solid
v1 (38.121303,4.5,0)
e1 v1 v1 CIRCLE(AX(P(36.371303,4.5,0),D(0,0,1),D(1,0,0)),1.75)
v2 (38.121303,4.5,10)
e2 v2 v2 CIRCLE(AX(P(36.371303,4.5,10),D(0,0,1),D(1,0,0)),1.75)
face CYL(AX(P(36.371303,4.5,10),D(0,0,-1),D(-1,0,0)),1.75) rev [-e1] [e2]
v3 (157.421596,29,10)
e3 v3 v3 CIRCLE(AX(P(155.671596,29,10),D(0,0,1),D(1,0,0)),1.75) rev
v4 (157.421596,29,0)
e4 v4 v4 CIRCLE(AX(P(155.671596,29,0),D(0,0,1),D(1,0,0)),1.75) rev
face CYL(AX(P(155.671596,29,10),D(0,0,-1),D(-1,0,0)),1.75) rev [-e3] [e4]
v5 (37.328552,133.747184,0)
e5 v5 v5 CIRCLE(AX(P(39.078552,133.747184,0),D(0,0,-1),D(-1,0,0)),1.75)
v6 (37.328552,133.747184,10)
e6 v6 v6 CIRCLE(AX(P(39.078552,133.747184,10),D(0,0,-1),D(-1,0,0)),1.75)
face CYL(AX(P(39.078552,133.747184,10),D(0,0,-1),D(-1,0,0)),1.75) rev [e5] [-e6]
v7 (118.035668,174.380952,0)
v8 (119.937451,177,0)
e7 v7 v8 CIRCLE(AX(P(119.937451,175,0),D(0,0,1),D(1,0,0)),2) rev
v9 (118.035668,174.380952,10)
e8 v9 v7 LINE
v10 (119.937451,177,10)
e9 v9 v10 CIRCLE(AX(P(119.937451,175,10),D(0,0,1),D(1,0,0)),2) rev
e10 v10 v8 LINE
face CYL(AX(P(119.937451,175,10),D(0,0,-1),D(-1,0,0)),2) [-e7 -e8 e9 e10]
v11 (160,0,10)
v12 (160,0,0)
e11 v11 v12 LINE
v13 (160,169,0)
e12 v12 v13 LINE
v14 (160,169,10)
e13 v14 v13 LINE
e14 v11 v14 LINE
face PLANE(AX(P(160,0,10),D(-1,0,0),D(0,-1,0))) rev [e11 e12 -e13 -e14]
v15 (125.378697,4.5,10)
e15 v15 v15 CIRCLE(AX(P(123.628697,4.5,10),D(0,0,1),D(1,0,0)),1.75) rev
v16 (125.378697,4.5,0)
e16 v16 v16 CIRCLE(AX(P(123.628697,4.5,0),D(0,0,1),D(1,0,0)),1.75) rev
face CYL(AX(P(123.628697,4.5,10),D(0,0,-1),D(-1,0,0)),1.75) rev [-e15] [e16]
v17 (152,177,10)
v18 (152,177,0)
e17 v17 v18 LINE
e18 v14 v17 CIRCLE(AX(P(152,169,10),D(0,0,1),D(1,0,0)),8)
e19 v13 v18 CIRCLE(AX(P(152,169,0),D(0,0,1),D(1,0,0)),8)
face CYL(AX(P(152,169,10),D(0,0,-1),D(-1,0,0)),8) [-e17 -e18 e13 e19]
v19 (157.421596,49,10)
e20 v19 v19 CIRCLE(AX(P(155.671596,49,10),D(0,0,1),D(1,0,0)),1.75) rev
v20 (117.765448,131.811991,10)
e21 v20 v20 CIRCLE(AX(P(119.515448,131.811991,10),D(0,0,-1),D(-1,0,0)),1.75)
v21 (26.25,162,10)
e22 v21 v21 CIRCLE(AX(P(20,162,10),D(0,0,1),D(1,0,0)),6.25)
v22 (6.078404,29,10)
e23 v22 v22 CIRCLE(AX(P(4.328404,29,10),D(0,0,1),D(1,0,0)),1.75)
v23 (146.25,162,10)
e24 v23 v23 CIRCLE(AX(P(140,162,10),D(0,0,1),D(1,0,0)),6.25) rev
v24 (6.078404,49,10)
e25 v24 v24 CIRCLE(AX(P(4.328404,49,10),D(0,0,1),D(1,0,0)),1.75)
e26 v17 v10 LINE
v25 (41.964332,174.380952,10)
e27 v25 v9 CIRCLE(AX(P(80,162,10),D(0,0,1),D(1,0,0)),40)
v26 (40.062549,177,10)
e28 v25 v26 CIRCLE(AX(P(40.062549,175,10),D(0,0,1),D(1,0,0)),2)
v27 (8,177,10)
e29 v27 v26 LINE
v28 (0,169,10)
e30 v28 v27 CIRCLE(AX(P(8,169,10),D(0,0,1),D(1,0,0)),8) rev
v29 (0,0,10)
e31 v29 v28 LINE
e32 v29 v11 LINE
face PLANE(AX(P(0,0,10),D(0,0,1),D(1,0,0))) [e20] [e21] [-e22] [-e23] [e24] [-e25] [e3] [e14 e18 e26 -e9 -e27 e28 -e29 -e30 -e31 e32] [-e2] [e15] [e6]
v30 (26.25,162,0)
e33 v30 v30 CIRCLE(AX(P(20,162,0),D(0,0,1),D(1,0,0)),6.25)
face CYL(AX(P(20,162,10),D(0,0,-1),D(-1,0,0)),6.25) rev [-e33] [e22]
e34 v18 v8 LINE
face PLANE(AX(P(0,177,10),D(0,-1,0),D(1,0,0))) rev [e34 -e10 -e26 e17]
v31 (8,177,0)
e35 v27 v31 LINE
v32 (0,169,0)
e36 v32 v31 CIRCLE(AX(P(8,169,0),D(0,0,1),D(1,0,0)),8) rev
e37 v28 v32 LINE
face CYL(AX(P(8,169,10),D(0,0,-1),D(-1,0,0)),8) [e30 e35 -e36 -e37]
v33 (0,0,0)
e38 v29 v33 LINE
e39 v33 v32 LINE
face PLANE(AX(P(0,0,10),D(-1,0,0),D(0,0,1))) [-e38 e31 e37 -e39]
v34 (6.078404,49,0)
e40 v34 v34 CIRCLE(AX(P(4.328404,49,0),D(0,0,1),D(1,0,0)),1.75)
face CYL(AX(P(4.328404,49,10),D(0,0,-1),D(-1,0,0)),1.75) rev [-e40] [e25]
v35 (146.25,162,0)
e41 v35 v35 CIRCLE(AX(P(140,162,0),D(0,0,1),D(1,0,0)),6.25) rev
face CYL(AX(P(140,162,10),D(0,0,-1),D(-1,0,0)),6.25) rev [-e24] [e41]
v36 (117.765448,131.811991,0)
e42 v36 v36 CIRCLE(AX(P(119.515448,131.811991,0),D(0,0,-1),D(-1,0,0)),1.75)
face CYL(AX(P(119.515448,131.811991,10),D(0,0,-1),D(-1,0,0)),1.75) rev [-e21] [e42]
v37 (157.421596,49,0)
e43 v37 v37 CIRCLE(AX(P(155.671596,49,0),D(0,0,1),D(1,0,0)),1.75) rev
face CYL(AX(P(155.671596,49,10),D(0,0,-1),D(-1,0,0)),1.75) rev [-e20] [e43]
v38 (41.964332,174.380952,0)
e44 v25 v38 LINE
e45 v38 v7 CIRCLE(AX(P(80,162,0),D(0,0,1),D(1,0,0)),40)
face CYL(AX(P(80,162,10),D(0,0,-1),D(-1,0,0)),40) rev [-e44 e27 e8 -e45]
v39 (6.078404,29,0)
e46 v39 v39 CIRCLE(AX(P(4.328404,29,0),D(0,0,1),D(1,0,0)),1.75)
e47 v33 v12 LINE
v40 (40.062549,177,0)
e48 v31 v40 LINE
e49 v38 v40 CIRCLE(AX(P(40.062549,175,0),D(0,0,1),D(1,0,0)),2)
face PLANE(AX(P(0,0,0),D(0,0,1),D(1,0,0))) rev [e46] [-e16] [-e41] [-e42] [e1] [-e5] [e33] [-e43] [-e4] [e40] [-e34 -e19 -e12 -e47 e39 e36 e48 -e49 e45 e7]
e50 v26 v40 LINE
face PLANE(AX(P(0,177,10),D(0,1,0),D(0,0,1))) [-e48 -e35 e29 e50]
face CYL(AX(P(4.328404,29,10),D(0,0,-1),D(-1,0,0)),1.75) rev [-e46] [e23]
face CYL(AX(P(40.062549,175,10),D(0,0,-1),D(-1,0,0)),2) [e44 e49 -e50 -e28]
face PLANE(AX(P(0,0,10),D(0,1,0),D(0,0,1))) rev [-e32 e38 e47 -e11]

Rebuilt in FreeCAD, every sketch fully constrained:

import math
import FreeCAD as App
import Part
import Sketcher
from FreeCAD import Vector
Q = App.Units.Quantity

doc = App.newDocument("Part")
params = doc.addObject("Spreadsheet::Sheet", "Params")
for row, (alias, value) in enumerate([
    ("sketch1_radius", "8 mm"),
    ("sketch1_radius2", "2 mm"),
    ("sketch1_radius3", "40 mm"),
    ("sketch1_diameter", "3.5 mm"),
    ("sketch1_diameter2", "12.5 mm"),
    ("pad1_length", "10 mm"),
    ("sketch2_diameter", "3.5 mm"),
    ("pocket1_length", "10 mm"),
], start=1):
    params.set(f"A{row}", alias)
    params.set(f"B{row}", "=" + value)
    params.setAlias(f"B{row}", alias)

body = doc.addObject("PartDesign::Body", "Body")

sketch1 = body.newObject("Sketcher::SketchObject", "Sketch")
sketch1.AttachmentSupport = (doc.getObject("XY_Plane"), [""])
sketch1.MapMode = "FlatFace"
sketch1.addGeometry([
    Part.LineSegment(Vector(0, 0, 0), Vector(160, 0, 0)),
    Part.LineSegment(Vector(160, 0, 0), Vector(160, 169, 0)),
    Part.ArcOfCircle(Part.Circle(Vector(152, 169, 0), Vector(0, 0, 1), 8), math.radians(0), math.radians(90)),
    Part.LineSegment(Vector(152, 177, 0), Vector(119.937451, 177, 0)),
    Part.ArcOfCircle(Part.Circle(Vector(119.937451, 175, 0), Vector(0, 0, 1), 2), math.radians(90), math.radians(198.030535)),
    Part.ArcOfCircle(Part.Circle(Vector(80, 162, 0), Vector(0, 0, 1), 40), math.radians(161.969465), math.radians(378.030535)),
    Part.ArcOfCircle(Part.Circle(Vector(40.062549, 175, 0), Vector(0, 0, 1), 2), math.radians(-18.030535), math.radians(90)),
    Part.LineSegment(Vector(40.062549, 177, 0), Vector(8, 177, 0)),
    Part.ArcOfCircle(Part.Circle(Vector(8, 169, 0), Vector(0, 0, 1), 8), math.radians(90), math.radians(180)),
    Part.LineSegment(Vector(0, 169, 0), Vector(0, 0, 0)),
    Part.Circle(Vector(36.371303, 4.5, 0), Vector(0, 0, 1), 1.75),
    Part.Circle(Vector(4.328404, 29, 0), Vector(0, 0, 1), 1.75),
    Part.Circle(Vector(4.328404, 49, 0), Vector(0, 0, 1), 1.75),
    Part.Circle(Vector(123.628697, 4.5, 0), Vector(0, 0, 1), 1.75),
    Part.Circle(Vector(155.671596, 29, 0), Vector(0, 0, 1), 1.75),
    Part.Circle(Vector(155.671596, 49, 0), Vector(0, 0, 1), 1.75),
    Part.Circle(Vector(20, 162, 0), Vector(0, 0, 1), 6.25),
    Part.Circle(Vector(140, 162, 0), Vector(0, 0, 1), 6.25),
], False)
sketch1.addConstraint([
    Sketcher.Constraint("Coincident", 0, 2, 1, 1),
    Sketcher.Constraint("Tangent", 1, 2, 2, 1),
    Sketcher.Constraint("Tangent", 2, 2, 3, 1),
    Sketcher.Constraint("Tangent", 3, 2, 4, 1),
    Sketcher.Constraint("Tangent", 4, 2, 5, 2),
    Sketcher.Constraint("Tangent", 5, 1, 6, 1),
    Sketcher.Constraint("Tangent", 6, 2, 7, 1),
    Sketcher.Constraint("Tangent", 7, 2, 8, 1),
    Sketcher.Constraint("Tangent", 8, 2, 9, 1),
    Sketcher.Constraint("Coincident", 9, 2, 0, 1),
    Sketcher.Constraint("Horizontal", 0),
    Sketcher.Constraint("Vertical", 1),
    Sketcher.Constraint("Horizontal", 3),
    Sketcher.Constraint("Horizontal", 7),
    Sketcher.Constraint("Vertical", 9),
    Sketcher.Constraint("Coincident", 9, 2, -1, 1),
    Sketcher.Constraint("Equal", 4, 6),
    Sketcher.Constraint("Equal", 2, 8),
    Sketcher.Constraint("Equal", 10, 11),
    Sketcher.Constraint("Equal", 11, 12),
    Sketcher.Constraint("Equal", 12, 13),
    Sketcher.Constraint("Equal", 13, 14),
    Sketcher.Constraint("Equal", 14, 15),
    Sketcher.Constraint("Equal", 16, 17),
    Sketcher.Constraint("Horizontal", 4, 3, 6, 3),
    Sketcher.Constraint("Horizontal", 10, 3, 13, 3),
    Sketcher.Constraint("Horizontal", 11, 3, 14, 3),
    Sketcher.Constraint("Horizontal", 12, 3, 15, 3),
    Sketcher.Constraint("Horizontal", 5, 3, 16, 3),
    Sketcher.Constraint("Horizontal", 16, 3, 17, 3),
    Sketcher.Constraint("Vertical", 11, 3, 12, 3),
    Sketcher.Constraint("Vertical", 14, 3, 15, 3),
    Sketcher.Constraint("Equal", 3, 7),
    Sketcher.Constraint("Radius", 2, Q("8 mm")),
    Sketcher.Constraint("Radius", 4, Q("2 mm")),
    Sketcher.Constraint("Radius", 5, Q("40 mm")),
    Sketcher.Constraint("Diameter", 10, Q("3.5 mm")),
    Sketcher.Constraint("Diameter", 16, Q("12.5 mm")),
    Sketcher.Constraint("DistanceX", 0, 1, 0, 2, Q("160 mm")),
    Sketcher.Constraint("DistanceY", 1, 1, 1, 2, Q("169 mm")),
    Sketcher.Constraint("DistanceY", -1, 1, 5, 3, Q("162 mm")),
    Sketcher.Constraint("DistanceY", -1, 1, 11, 3, Q("29 mm")),
    Sketcher.Constraint("DistanceY", -1, 1, 12, 3, Q("49 mm")),
    Sketcher.Constraint("DistanceX", -1, 1, 16, 3, Q("20 mm")),
    Sketcher.Constraint("DistanceX", -1, 1, 17, 3, Q("140 mm")),
    Sketcher.Constraint("DistanceY", -1, 1, 10, 3, Q("4.5 mm")),
    Sketcher.Constraint("DistanceX", 11, 3, 10, 3, Q("32.042899 mm")),
    Sketcher.Constraint("DistanceX", 13, 3, 14, 3, Q("32.042899 mm")),
    Sketcher.Constraint("DistanceX", 10, 3, 4, 3, Q("83.566148 mm")),
    Sketcher.Constraint("DistanceX", -1, 1, 13, 3, Q("123.628697 mm")),
])
sketch1.setExpression("Constraints[33]", "Params.sketch1_radius")
sketch1.setExpression("Constraints[34]", "Params.sketch1_radius2")
sketch1.setExpression("Constraints[35]", "Params.sketch1_radius3")
sketch1.setExpression("Constraints[36]", "Params.sketch1_diameter")
sketch1.setExpression("Constraints[37]", "Params.sketch1_diameter2")
pad1 = body.newObject("PartDesign::Pad", "Pad")
pad1.Profile = sketch1
pad1.setExpression("Length", "Params.pad1_length")

sketch2 = body.newObject("Sketcher::SketchObject", "Sketch001")
sketch2.AttachmentSupport = (doc.getObject("XY_Plane"), [""])
sketch2.MapMode = "FlatFace"
sketch2.addGeometry([
    Part.Circle(Vector(119.515448, 131.811991, 0), Vector(0, 0, 1), 1.75),
    Part.Circle(Vector(39.078552, 133.747184, 0), Vector(0, 0, 1), 1.75),
], False)
sketch2.addConstraint([
    Sketcher.Constraint("Equal", 0, 1),
    Sketcher.Constraint("Diameter", 0, Q("3.5 mm")),
    Sketcher.Constraint("DistanceY", -1, 1, 0, 3, Q("131.811991 mm")),
    Sketcher.Constraint("DistanceX", -1, 1, 0, 3, Q("119.515448 mm")),
    Sketcher.Constraint("DistanceX", -1, 1, 1, 3, Q("39.078552 mm")),
    Sketcher.Constraint("DistanceY", -1, 1, 1, 3, Q("133.747184 mm")),
])
sketch2.setExpression("Constraints[1]", "Params.sketch2_diameter")
pocket1 = body.newObject("PartDesign::Pocket", "Pocket")
pocket1.Profile = sketch2
pocket1.setExpression("Length", "Params.pocket1_length")
pocket1.Reversed = True

doc.recompute()
